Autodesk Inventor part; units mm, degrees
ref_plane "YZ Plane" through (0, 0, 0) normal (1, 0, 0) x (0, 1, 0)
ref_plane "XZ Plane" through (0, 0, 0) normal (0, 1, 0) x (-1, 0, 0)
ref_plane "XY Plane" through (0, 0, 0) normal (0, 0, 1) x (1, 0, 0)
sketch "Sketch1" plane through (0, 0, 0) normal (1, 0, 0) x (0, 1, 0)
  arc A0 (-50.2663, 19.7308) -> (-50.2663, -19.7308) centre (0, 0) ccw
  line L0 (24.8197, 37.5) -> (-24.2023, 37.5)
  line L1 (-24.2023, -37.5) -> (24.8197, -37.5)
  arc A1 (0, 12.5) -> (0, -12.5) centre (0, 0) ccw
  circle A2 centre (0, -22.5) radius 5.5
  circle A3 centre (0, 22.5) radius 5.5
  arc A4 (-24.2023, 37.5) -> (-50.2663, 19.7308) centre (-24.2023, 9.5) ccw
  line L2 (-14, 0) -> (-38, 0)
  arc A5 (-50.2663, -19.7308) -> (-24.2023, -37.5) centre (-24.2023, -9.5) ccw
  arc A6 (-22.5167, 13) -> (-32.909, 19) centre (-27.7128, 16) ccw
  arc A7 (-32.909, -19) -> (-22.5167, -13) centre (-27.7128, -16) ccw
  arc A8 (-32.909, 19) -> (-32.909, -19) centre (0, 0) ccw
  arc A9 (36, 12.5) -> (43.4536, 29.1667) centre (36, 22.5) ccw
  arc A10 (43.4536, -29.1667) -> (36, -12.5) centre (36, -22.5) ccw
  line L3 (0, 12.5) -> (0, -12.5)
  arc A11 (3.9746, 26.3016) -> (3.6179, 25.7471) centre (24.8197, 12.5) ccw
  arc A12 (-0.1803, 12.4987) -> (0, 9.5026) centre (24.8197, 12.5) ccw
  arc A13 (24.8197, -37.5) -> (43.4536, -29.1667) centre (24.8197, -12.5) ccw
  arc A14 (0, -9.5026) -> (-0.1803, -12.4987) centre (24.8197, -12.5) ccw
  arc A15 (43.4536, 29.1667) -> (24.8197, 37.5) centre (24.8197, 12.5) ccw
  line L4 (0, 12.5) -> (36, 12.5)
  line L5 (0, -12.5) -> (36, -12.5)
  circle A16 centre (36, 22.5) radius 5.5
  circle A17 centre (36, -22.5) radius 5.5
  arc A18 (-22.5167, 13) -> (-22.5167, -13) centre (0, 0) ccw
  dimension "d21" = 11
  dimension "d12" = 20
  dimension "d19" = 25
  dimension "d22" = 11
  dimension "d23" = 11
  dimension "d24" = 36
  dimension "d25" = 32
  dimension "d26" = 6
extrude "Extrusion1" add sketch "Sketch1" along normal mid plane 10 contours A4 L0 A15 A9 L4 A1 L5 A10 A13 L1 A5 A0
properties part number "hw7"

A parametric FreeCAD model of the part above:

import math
import FreeCAD as App
import Part
import Sketcher

V = App.Vector
Q = App.Units.Quantity

doc = App.newDocument("Part")
body = doc.addObject("PartDesign::Body", "Body")

sketch1 = body.newObject("Sketcher::SketchObject", "Sketch")
sketch1.AttachmentSupport = (doc.getObject("YZ_Plane"), [""])
sketch1.MapMode = "FlatFace"
sketch1.addGeometry([
    Part.ArcOfCircle(Part.Circle(V(-24.2023, 9.5, 0), V(0, 0, 1), 28), math.radians(90), math.radians(158.568697)),
    Part.ArcOfCircle(Part.Circle(V(0, 0, 0), V(0, 0, 1), 54.00005), math.radians(158.568731), math.radians(201.431269)),
    Part.ArcOfCircle(Part.Circle(V(-24.2023, -9.5, 0), V(0, 0, 1), 28.000024), math.radians(-158.568697), math.radians(-90)),
    Part.LineSegment(V(-24.2023, -37.5, 0), V(24.8197, -37.5, 0)),
    Part.ArcOfCircle(Part.Circle(V(24.8197, -12.5, 0), V(0, 0, 1), 25.000038), math.radians(-90), math.radians(-41.810372)),
    Part.ArcOfCircle(Part.Circle(V(36, -22.5, 0), V(0, 0, 1), 10.000052), math.radians(-41.810304), math.radians(90)),
    Part.LineSegment(V(36, -12.5, 0), V(0, -12.5, 0)),
    Part.ArcOfCircle(Part.Circle(V(0, 0, 0), V(0, 0, 1), 12.5), math.radians(90), math.radians(270)),
    Part.LineSegment(V(0, 12.5, 0), V(36, 12.5, 0)),
    Part.ArcOfCircle(Part.Circle(V(36, 22.5, 0), V(0, 0, 1), 10), math.radians(-90), math.radians(41.810304)),
    Part.ArcOfCircle(Part.Circle(V(24.8197, 12.5, 0), V(0, 0, 1), 25), math.radians(41.810372), math.radians(90)),
    Part.LineSegment(V(24.8197, 37.5, 0), V(-24.2023, 37.5, 0)),
    Part.ArcOfCircle(Part.Circle(V(0, 0, 0), V(0, 0, 1), 26.000034), math.radians(150.000044), math.radians(209.999956)),
    Part.ArcOfCircle(Part.Circle(V(-27.7128, -16, 0), V(0, 0, 1), 6.000041), math.radians(-150.000227), math.radians(30.00025)),
    Part.ArcOfCircle(Part.Circle(V(0, 0, 0), V(0, 0, 1), 38.00003), math.radians(150.000026), math.radians(209.999974)),
    Part.ArcOfCircle(Part.Circle(V(-27.7128, 16, 0), V(0, 0, 1), 5.999955), math.radians(-30.00025), math.radians(150.000227)),
    Part.Circle(V(0, -22.5, 0), V(0, 0, 1), 5.5),
    Part.Circle(V(36, -22.5, 0), V(0, 0, 1), 5.5),
    Part.Circle(V(0, 22.5, 0), V(0, 0, 1), 5.5),
    Part.Circle(V(36, 22.5, 0), V(0, 0, 1), 5.5),
], False)
sketch1.addConstraint([
    Sketcher.Constraint("Tangent", 0, 2, 1, 1),
    Sketcher.Constraint("Tangent", 1, 2, 2, 1),
    Sketcher.Constraint("Tangent", 2, 2, 3, 1),
    Sketcher.Constraint("Tangent", 3, 2, 4, 1),
    Sketcher.Constraint("Tangent", 4, 2, 5, 1),
    Sketcher.Constraint("Tangent", 5, 2, 6, 1),
    Sketcher.Constraint("Tangent", 6, 2, 7, 2),
    Sketcher.Constraint("Tangent", 7, 1, 8, 1),
    Sketcher.Constraint("Tangent", 8, 2, 9, 1),
    Sketcher.Constraint("Tangent", 9, 2, 10, 1),
    Sketcher.Constraint("Tangent", 10, 2, 11, 1),
    Sketcher.Constraint("Tangent", 11, 2, 0, 1),
    Sketcher.Constraint("Tangent", 12, 2, 13, 2),
    Sketcher.Constraint("Tangent", 13, 1, 14, 2),
    Sketcher.Constraint("Tangent", 14, 1, 15, 2),
    Sketcher.Constraint("Tangent", 15, 1, 12, 1),
    Sketcher.Constraint("Horizontal", 3),
    Sketcher.Constraint("Horizontal", 6),
    Sketcher.Constraint("Horizontal", 8),
    Sketcher.Constraint("Horizontal", 11),
    Sketcher.Constraint("Coincident", 1, 3, -1, 1),
    Sketcher.Constraint("Coincident", 7, 3, -1, 1),
    Sketcher.Constraint("Coincident", 12, 3, -1, 1),
    Sketcher.Constraint("Coincident", 14, 3, -1, 1),
    Sketcher.Constraint("Coincident", 17, 3, 5, 3),
    Sketcher.Constraint("Coincident", 19, 3, 9, 3),
    Sketcher.Constraint("Equal", 0, 2),
    Sketcher.Constraint("Equal", 5, 9),
    Sketcher.Constraint("Equal", 4, 10),
    Sketcher.Constraint("Equal", 16, 17),
    Sketcher.Constraint("Equal", 17, 18),
    Sketcher.Constraint("Equal", 18, 19),
    Sketcher.Constraint("Symmetric", 16, 3, 18, 3, -1, 1),
    Sketcher.Constraint("Symmetric", 4, 3, 10, 3, -1),
    Sketcher.Constraint("PointOnObject", 16, 3, -2),
    Sketcher.Constraint("Horizontal", 5, 3, 16, 3),
    Sketcher.Constraint("Horizontal", 4, 3, 5, 2),
    Sketcher.Constraint("Vertical", 13, 3, 15, 3),
    Sketcher.Constraint("Diameter", 16, Q("11 mm")),
    Sketcher.Constraint("Radius", 4, Q("25 mm")),
    Sketcher.Constraint("Radius", 5, Q("10 mm")),
    Sketcher.Constraint("Radius", 13, Q("6 mm")),
    Sketcher.Constraint("Radius", 7, Q("12.5 mm")),
    Sketcher.Constraint("DistanceX", 6, 2, 6, 1, Q("36 mm")),
    Sketcher.Constraint("Radius", 0, Q("28 mm")),
    Sketcher.Constraint("Radius", 1, Q("54 mm")),
    Sketcher.Constraint("Radius", 12, Q("26 mm")),
    Sketcher.Constraint("DistanceY", 13, 1, 12, 2, Q("6 mm")),
])
pad1 = body.newObject("PartDesign::Pad", "Pad")
pad1.Profile = sketch1
pad1.Length = 10
pad1.Midplane = True

doc.recompute()
